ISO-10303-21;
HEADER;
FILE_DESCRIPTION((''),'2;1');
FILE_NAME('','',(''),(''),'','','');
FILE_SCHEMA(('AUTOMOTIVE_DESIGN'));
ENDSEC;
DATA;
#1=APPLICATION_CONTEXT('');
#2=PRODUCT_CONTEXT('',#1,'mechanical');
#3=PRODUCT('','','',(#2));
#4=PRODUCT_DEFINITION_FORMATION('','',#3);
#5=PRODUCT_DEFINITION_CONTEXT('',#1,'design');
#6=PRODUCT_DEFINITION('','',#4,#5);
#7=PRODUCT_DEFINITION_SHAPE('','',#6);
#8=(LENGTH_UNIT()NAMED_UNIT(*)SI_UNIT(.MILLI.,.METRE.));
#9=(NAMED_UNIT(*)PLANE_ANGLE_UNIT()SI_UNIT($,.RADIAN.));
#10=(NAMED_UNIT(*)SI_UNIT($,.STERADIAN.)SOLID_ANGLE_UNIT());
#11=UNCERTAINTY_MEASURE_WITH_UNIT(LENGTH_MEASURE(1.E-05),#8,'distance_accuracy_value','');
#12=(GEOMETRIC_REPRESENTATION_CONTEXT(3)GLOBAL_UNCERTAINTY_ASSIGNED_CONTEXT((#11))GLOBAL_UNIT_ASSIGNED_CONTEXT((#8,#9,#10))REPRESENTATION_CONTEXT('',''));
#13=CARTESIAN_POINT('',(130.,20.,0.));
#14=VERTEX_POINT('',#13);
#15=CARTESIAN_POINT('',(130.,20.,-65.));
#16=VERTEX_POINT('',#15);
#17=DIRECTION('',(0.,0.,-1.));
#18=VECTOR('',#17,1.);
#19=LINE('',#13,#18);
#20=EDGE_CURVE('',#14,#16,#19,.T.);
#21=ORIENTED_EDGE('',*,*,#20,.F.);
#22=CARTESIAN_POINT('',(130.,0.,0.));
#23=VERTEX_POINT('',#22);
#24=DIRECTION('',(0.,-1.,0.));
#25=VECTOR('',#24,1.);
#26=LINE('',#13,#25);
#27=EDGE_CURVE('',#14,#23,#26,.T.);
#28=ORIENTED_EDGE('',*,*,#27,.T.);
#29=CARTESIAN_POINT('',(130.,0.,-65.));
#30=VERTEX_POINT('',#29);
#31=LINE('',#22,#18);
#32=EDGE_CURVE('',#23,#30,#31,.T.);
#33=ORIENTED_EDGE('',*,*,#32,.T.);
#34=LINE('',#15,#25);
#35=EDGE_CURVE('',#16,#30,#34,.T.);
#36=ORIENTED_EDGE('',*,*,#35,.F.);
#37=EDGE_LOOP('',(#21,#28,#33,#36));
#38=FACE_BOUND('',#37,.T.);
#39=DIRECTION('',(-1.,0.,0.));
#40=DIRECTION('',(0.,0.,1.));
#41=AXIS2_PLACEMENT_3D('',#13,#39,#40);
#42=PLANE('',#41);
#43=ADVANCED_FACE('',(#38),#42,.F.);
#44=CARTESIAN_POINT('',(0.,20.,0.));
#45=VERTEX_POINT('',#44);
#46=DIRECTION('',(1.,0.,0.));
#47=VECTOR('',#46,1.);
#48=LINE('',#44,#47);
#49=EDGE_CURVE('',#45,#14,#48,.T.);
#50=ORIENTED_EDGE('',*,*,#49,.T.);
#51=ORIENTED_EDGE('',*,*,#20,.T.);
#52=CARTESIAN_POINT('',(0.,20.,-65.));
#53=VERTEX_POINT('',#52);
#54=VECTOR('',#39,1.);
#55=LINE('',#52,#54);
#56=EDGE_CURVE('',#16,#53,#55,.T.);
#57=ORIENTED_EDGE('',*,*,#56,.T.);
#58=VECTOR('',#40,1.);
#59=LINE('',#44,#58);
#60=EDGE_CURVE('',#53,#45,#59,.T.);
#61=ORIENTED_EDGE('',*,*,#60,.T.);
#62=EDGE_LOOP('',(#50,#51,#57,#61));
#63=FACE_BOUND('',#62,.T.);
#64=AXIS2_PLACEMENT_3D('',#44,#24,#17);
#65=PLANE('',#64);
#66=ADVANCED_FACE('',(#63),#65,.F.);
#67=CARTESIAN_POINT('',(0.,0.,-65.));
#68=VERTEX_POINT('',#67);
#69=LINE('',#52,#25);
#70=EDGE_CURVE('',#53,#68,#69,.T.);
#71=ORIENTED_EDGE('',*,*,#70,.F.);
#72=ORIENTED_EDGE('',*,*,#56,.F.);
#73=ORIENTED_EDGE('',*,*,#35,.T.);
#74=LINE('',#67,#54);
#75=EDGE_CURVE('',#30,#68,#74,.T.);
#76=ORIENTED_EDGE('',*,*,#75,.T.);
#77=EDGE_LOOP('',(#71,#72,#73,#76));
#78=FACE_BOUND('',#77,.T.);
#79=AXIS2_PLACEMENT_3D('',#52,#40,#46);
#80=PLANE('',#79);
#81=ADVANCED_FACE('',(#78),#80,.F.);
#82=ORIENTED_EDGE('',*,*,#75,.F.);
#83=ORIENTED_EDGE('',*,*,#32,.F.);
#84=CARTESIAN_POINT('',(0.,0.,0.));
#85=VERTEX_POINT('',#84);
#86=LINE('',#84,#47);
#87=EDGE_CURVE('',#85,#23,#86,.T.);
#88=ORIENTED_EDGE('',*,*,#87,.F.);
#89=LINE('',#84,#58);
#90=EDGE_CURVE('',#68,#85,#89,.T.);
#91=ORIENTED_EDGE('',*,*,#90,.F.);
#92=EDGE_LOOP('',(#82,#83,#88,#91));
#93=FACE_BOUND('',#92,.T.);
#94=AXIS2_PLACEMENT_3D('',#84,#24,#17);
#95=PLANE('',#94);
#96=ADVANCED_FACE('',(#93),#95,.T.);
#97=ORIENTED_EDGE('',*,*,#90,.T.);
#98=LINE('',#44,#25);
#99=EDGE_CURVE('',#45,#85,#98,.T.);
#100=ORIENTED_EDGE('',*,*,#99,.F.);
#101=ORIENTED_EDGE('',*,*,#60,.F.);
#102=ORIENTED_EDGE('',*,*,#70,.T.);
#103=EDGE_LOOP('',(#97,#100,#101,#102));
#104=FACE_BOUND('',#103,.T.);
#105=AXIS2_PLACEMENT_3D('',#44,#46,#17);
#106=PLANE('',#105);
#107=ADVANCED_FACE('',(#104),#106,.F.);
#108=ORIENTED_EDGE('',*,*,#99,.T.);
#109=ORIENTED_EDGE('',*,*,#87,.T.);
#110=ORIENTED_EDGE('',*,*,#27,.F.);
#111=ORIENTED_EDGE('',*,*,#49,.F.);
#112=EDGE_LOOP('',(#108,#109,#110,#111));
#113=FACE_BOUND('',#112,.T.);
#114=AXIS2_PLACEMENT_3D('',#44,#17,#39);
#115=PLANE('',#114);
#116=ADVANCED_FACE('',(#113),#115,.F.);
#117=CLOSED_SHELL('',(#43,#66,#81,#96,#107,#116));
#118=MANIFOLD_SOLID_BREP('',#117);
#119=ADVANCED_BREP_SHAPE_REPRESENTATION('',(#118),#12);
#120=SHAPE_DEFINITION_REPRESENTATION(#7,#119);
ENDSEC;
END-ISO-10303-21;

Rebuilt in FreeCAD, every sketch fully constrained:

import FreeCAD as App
import Part
import Sketcher
from FreeCAD import Vector
Q = App.Units.Quantity

doc = App.newDocument("Part")
body = doc.addObject("PartDesign::Body", "Body")

# Sketch on XZ plane
sketch1 = body.newObject("Sketcher::SketchObject", "Sketch")
sketch1.AttachmentSupport = (doc.getObject("XZ_Plane"), [""])
sketch1.MapMode = "FlatFace"
sketch1.addGeometry([
    Part.LineSegment(Vector(0, -65, 0), Vector(0, 0, 0)),
    Part.LineSegment(Vector(0, 0, 0), Vector(130, 0, 0)),
    Part.LineSegment(Vector(130, 0, 0), Vector(130, -65, 0)),
    Part.LineSegment(Vector(130, -65, 0), Vector(0, -65, 0)),
], False)
sketch1.addConstraint([
    Sketcher.Constraint("Coincident", 0, 2, 1, 1),
    Sketcher.Constraint("Coincident", 1, 2, 2, 1),
    Sketcher.Constraint("Coincident", 2, 2, 3, 1),
    Sketcher.Constraint("Coincident", 3, 2, 0, 1),
    Sketcher.Constraint("Vertical", 0),
    Sketcher.Constraint("Horizontal", 1),
    Sketcher.Constraint("Vertical", 2),
    Sketcher.Constraint("Horizontal", 3),
    Sketcher.Constraint("Coincident", 0, 2, -1, 1),
    Sketcher.Constraint("DistanceX", 1, 1, 1, 2, Q("130 mm")),
    Sketcher.Constraint("DistanceY", 0, 1, 0, 2, Q("65 mm")),
])
pad1 = body.newObject("PartDesign::Pad", "Pad")
pad1.Profile = sketch1
pad1.Length = 20
pad1.Reversed = True

doc.recompute()
